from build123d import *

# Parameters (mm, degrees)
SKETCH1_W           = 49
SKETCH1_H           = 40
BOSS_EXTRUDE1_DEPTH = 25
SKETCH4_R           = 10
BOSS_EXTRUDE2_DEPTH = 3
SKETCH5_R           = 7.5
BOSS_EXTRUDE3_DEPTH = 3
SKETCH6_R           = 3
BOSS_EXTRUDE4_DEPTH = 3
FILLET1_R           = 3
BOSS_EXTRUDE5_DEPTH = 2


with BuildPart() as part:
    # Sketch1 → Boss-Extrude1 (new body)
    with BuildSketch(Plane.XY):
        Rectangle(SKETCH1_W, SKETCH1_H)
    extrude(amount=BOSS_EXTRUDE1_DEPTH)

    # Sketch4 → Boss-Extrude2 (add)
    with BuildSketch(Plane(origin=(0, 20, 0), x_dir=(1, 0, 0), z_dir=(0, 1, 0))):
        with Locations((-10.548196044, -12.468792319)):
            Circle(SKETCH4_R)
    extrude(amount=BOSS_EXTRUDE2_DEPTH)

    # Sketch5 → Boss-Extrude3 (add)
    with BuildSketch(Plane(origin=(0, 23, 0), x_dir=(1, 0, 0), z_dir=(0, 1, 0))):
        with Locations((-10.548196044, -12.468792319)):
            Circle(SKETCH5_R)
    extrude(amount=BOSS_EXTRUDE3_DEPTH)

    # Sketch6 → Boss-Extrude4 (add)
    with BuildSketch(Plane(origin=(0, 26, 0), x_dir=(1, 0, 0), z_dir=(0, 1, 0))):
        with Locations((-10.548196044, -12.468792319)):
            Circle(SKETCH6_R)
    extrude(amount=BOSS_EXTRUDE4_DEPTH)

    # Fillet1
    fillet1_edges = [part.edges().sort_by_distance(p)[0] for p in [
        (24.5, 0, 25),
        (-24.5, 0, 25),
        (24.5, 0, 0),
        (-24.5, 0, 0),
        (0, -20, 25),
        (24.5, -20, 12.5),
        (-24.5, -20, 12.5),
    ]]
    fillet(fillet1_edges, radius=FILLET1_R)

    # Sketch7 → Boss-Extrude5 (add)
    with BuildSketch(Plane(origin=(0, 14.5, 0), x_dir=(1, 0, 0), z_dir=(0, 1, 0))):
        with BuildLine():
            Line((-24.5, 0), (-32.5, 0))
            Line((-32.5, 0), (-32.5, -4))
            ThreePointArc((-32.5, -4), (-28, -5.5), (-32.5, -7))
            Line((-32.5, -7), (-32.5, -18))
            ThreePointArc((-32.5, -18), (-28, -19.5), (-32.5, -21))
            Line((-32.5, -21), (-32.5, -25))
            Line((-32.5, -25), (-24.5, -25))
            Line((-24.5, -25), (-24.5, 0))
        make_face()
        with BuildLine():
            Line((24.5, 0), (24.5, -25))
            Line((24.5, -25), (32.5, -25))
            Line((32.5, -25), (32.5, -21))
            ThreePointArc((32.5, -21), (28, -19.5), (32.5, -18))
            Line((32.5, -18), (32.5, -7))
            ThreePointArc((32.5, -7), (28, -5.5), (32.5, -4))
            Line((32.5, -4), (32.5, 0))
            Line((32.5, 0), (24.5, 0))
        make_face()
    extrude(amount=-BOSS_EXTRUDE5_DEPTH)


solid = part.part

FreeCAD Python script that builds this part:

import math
import FreeCAD as App
import Part
import Sketcher

V = App.Vector
Q = App.Units.Quantity


def edges_at(feature, points):
    """Names of the edges that pass closest to the given points."""
    edges = feature.Shape.Edges
    near = lambda p: min(range(len(edges)), key=lambda i: edges[i].distToShape(Part.Vertex(*p))[0])
    return sorted({f"Edge{near(p) + 1}" for p in points})


def add_polygon(sketch, points):
    """Adds a closed chain of lines whose ends are joined by coincident constraints."""
    first, n = sketch.GeometryCount, len(points)
    for a, b in zip(points, points[1:] + points[:1]):
        sketch.addGeometry(Part.LineSegment(App.Vector(*a, 0), App.Vector(*b, 0)), False)
    for i in range(n):
        sketch.addConstraint(Sketcher.Constraint("Coincident", first + i, 2, first + (i + 1) % n, 1))

doc = App.newDocument("Part")
body = doc.addObject("PartDesign::Body", "Body")

# Sketch on XY plane
sketch1 = doc.addObject("Sketcher::SketchObject", "Sketch")
body.addObject(sketch1)
sketch1.AttachmentSupport = (doc.XY_Plane, [""])
sketch1.MapMode = "FlatFace"
add_polygon(sketch1, [(-24.5, 20), (-24.5, -20), (24.5, -20), (24.5, 20)])  # lines 0-3
sketch1.addConstraint([
    Sketcher.Constraint("Vertical", 0),
    Sketcher.Constraint("Horizontal", 1),
    Sketcher.Constraint("Vertical", 2),
    Sketcher.Constraint("Horizontal", 3),
    Sketcher.Constraint("Symmetric", 0, 2, 2, 2, -1, 1),
    Sketcher.Constraint("DistanceX", 1, 1, 1, 2, Q("49 mm")),
    Sketcher.Constraint("DistanceY", 0, 2, 0, 1, Q("40 mm")),
])
pad1 = doc.addObject("PartDesign::Pad", "Pad")
body.addObject(pad1)
pad1.Profile = sketch1
pad1.Length = 25

# Sketch on XZ plane
sketch2 = doc.addObject("Sketcher::SketchObject", "Sketch001")
body.addObject(sketch2)
sketch2.AttachmentSupport = (doc.XZ_Plane, [""])
sketch2.MapMode = "FlatFace"
sketch2.AttachmentOffset = App.Placement(V(0, 0, -20), App.Rotation())
sketch2.addGeometry(Part.Circle(V(-10.548196, 12.468792, 0), V(0, 0, 1), 10), False)
sketch2.addConstraint([
    Sketcher.Constraint("Diameter", 0, Q("20 mm")),
    Sketcher.Constraint("DistanceX", 0, 3, -1, 1, Q("10.548196 mm")),
    Sketcher.Constraint("DistanceY", -1, 1, 0, 3, Q("12.468792 mm")),
])
pad2 = doc.addObject("PartDesign::Pad", "Pad001")
body.addObject(pad2)
pad2.Profile = sketch2
pad2.Length = 3
pad2.Reversed = True

# Sketch on XZ plane
sketch3 = doc.addObject("Sketcher::SketchObject", "Sketch002")
body.addObject(sketch3)
sketch3.AttachmentSupport = (doc.XZ_Plane, [""])
sketch3.MapMode = "FlatFace"
sketch3.AttachmentOffset = App.Placement(V(0, 0, -23), App.Rotation())
sketch3.addGeometry(Part.Circle(V(-10.548196, 12.468792, 0), V(0, 0, 1), 7.5), False)
sketch3.addConstraint([
    Sketcher.Constraint("Diameter", 0, Q("15 mm")),
    Sketcher.Constraint("DistanceX", 0, 3, -1, 1, Q("10.548196 mm")),
    Sketcher.Constraint("DistanceY", -1, 1, 0, 3, Q("12.468792 mm")),
])
pad3 = doc.addObject("PartDesign::Pad", "Pad002")
body.addObject(pad3)
pad3.Profile = sketch3
pad3.Length = 3
pad3.Reversed = True

# Sketch on XZ plane
sketch4 = doc.addObject("Sketcher::SketchObject", "Sketch003")
body.addObject(sketch4)
sketch4.AttachmentSupport = (doc.XZ_Plane, [""])
sketch4.MapMode = "FlatFace"
sketch4.AttachmentOffset = App.Placement(V(0, 0, -26), App.Rotation())
sketch4.addGeometry(Part.Circle(V(-10.548196, 12.468792, 0), V(0, 0, 1), 3), False)
sketch4.addConstraint([
    Sketcher.Constraint("Diameter", 0, Q("6 mm")),
    Sketcher.Constraint("DistanceX", 0, 3, -1, 1, Q("10.548196 mm")),
    Sketcher.Constraint("DistanceY", -1, 1, 0, 3, Q("12.468792 mm")),
])
pad4 = doc.addObject("PartDesign::Pad", "Pad003")
body.addObject(pad4)
pad4.Profile = sketch4
pad4.Length = 3
pad4.Reversed = True
doc.recompute()

fillet = doc.addObject("PartDesign::Fillet", "Fillet")
body.addObject(fillet)
fillet.Base = (pad4, edges_at(pad4, [
    (24.5, 0, 25),
    (-24.5, 0, 25),
    (24.5, 0, 0),
    (-24.5, 0, 0),
    (0, -20, 25),
    (24.5, -20, 12.5),
    (-24.5, -20, 12.5),
]))
fillet.Radius = 3

# Sketch on XZ plane
sketch5 = doc.addObject("Sketcher::SketchObject", "Sketch004")
body.addObject(sketch5)
sketch5.AttachmentSupport = (doc.XZ_Plane, [""])
sketch5.MapMode = "FlatFace"
sketch5.AttachmentOffset = App.Placement(V(0, 0, -14.5), App.Rotation())
sketch5.addGeometry([
    Part.LineSegment(V(-24.5, 0, 0), V(-32.5, 0, 0)),  # 0
    Part.LineSegment(V(-32.5, 0, 0), V(-32.5, 4, 0)),  # 1
    Part.ArcOfCircle(Part.Circle(V(-30.5, 5.5, 0), V(0, 0, 1), 2.5), math.radians(-143.130102), math.radians(143.130102)),  # 2
    Part.LineSegment(V(-32.5, 7, 0), V(-32.5, 18, 0)),  # 3
    Part.ArcOfCircle(Part.Circle(V(-30.5, 19.5, 0), V(0, 0, 1), 2.5), math.radians(-143.130102), math.radians(143.130102)),  # 4
    Part.LineSegment(V(-32.5, 21, 0), V(-32.5, 25, 0)),  # 5
    Part.LineSegment(V(-32.5, 25, 0), V(-24.5, 25, 0)),  # 6
    Part.LineSegment(V(-24.5, 25, 0), V(-24.5, 0, 0)),  # 7
    Part.LineSegment(V(24.5, 0, 0), V(24.5, 25, 0)),  # 8
    Part.LineSegment(V(24.5, 25, 0), V(32.5, 25, 0)),  # 9
    Part.LineSegment(V(32.5, 25, 0), V(32.5, 21, 0)),  # 10
    Part.ArcOfCircle(Part.Circle(V(30.5, 19.5, 0), V(0, 0, 1), 2.5), math.radians(36.869898), math.radians(323.130102)),  # 11
    Part.LineSegment(V(32.5, 18, 0), V(32.5, 7, 0)),  # 12
    Part.ArcOfCircle(Part.Circle(V(30.5, 5.5, 0), V(0, 0, 1), 2.5), math.radians(36.869898), math.radians(323.130102)),  # 13
    Part.LineSegment(V(32.5, 4, 0), V(32.5, 0, 0)),  # 14
    Part.LineSegment(V(32.5, 0, 0), V(24.5, 0, 0)),  # 15
], False)
sketch5.addConstraint([
    Sketcher.Constraint("Coincident", 0, 2, 1, 1),
    Sketcher.Constraint("Coincident", 1, 2, 2, 1),
    Sketcher.Constraint("Coincident", 2, 2, 3, 1),
    Sketcher.Constraint("Coincident", 3, 2, 4, 1),
    Sketcher.Constraint("Coincident", 4, 2, 5, 1),
    Sketcher.Constraint("Coincident", 5, 2, 6, 1),
    Sketcher.Constraint("Coincident", 6, 2, 7, 1),
    Sketcher.Constraint("Coincident", 7, 2, 0, 1),
    Sketcher.Constraint("Coincident", 8, 2, 9, 1),
    Sketcher.Constraint("Coincident", 9, 2, 10, 1),
    Sketcher.Constraint("Coincident", 10, 2, 11, 1),
    Sketcher.Constraint("Coincident", 11, 2, 12, 1),
    Sketcher.Constraint("Coincident", 12, 2, 13, 1),
    Sketcher.Constraint("Coincident", 13, 2, 14, 1),
    Sketcher.Constraint("Coincident", 14, 2, 15, 1),
    Sketcher.Constraint("Coincident", 15, 2, 8, 1),
    Sketcher.Constraint("Horizontal", 0),
    Sketcher.Constraint("Vertical", 1),
    Sketcher.Constraint("Vertical", 3),
    Sketcher.Constraint("Vertical", 5),
    Sketcher.Constraint("Horizontal", 6),
    Sketcher.Constraint("Vertical", 7),
    Sketcher.Constraint("Vertical", 8),
    Sketcher.Constraint("Horizontal", 9),
    Sketcher.Constraint("Vertical", 10),
    Sketcher.Constraint("Vertical", 12),
    Sketcher.Constraint("Vertical", 14),
    Sketcher.Constraint("Horizontal", 15),
    Sketcher.Constraint("Equal", 2, 4),
    Sketcher.Constraint("Equal", 4, 11),
    Sketcher.Constraint("Equal", 11, 13),
    Sketcher.Constraint("Symmetric", 0, 2, 14, 2, -1, 1),
    Sketcher.Constraint("Symmetric", 4, 3, 11, 3, -2),
    Sketcher.Constraint("Symmetric", 2, 3, 13, 3, -2),
    Sketcher.Constraint("Symmetric", 6, 2, 8, 2, -2),
    Sketcher.Constraint("PointOnObject", 0, 2, -1),
    Sketcher.Constraint("Horizontal", 4, 2, 10, 2),
    Sketcher.Constraint("Horizontal", 3, 2, 11, 2),
    Sketcher.Constraint("Vertical", 2, 3, 4, 3),
    Sketcher.Constraint("Vertical", 1, 2, 2, 2),
    Sketcher.Constraint("Vertical", 3, 2, 4, 2),
    Sketcher.Constraint("Equal", 1, 5),
    Sketcher.Constraint("Radius", 2, Q("2.5 mm")),
    Sketcher.Constraint("DistanceX", 0, 2, 0, 1, Q("8 mm")),
    Sketcher.Constraint("DistanceY", 1, 1, 1, 2, Q("4 mm")),
    Sketcher.Constraint("DistanceY", 3, 1, 3, 2, Q("11 mm")),
    Sketcher.Constraint("DistanceY", 7, 2, 7, 1, Q("25 mm")),
    Sketcher.Constraint("DistanceX", 4, 3, 11, 3, Q("61 mm")),
])
pad5 = doc.addObject("PartDesign::Pad", "Pad004")
body.addObject(pad5)
pad5.Profile = sketch5
pad5.Length = 2

doc.recompute()
